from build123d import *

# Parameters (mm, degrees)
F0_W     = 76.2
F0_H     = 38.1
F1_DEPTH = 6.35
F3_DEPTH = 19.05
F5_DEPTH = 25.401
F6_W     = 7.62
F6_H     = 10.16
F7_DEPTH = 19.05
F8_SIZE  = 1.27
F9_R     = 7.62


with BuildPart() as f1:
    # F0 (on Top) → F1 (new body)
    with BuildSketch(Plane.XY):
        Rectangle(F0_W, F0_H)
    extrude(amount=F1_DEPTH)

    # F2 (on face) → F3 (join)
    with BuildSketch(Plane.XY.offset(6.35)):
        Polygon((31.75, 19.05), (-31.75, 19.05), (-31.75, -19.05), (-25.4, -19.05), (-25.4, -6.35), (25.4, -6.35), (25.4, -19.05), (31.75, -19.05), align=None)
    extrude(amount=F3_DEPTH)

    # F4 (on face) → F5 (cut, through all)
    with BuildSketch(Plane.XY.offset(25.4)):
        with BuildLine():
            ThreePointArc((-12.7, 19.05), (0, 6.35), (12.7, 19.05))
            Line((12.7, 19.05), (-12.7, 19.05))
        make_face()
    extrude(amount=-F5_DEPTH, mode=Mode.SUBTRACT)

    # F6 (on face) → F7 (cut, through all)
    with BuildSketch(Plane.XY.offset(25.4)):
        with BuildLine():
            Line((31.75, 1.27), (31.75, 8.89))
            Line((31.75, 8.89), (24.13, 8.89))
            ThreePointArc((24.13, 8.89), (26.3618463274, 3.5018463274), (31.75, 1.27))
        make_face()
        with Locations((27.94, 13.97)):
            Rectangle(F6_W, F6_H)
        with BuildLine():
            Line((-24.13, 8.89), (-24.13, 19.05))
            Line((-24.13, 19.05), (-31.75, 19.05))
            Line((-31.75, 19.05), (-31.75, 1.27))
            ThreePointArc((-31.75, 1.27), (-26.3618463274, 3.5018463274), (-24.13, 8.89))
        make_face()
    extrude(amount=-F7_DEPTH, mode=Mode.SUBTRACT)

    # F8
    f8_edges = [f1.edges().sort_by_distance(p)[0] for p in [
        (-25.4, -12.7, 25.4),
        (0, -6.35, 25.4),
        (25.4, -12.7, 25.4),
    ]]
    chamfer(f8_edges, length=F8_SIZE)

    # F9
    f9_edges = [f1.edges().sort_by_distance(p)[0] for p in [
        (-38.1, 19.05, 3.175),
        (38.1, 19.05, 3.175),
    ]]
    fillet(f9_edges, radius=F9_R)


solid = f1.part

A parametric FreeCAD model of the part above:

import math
import FreeCAD as App
import Part
import Sketcher

V = App.Vector
Q = App.Units.Quantity


def edges_at(feature, points):
    """Names of the edges that pass closest to the given points."""
    edges = feature.Shape.Edges
    near = lambda p: min(range(len(edges)), key=lambda i: edges[i].distToShape(Part.Vertex(*p))[0])
    return sorted({f"Edge{near(p) + 1}" for p in points})


def add_polygon(sketch, points):
    """Adds a closed chain of lines whose ends are joined by coincident constraints."""
    first, n = sketch.GeometryCount, len(points)
    for a, b in zip(points, points[1:] + points[:1]):
        sketch.addGeometry(Part.LineSegment(App.Vector(*a, 0), App.Vector(*b, 0)), False)
    for i in range(n):
        sketch.addConstraint(Sketcher.Constraint("Coincident", first + i, 2, first + (i + 1) % n, 1))

doc = App.newDocument("Part")
body = doc.addObject("PartDesign::Body", "Body")

# Sketch on XY plane
sketch1 = body.newObject("Sketcher::SketchObject", "Sketch")
sketch1.AttachmentSupport = (doc.getObject("XY_Plane"), [""])
sketch1.MapMode = "FlatFace"
add_polygon(sketch1, [(-38.1, 19.05), (-38.1, -19.05), (38.1, -19.05), (38.1, 19.05)])  # lines 0-3
sketch1.addConstraint([
    Sketcher.Constraint("Vertical", 0),
    Sketcher.Constraint("Horizontal", 1),
    Sketcher.Constraint("Vertical", 2),
    Sketcher.Constraint("Horizontal", 3),
    Sketcher.Constraint("Symmetric", 0, 2, 2, 2, -1, 1),
    Sketcher.Constraint("DistanceX", 1, 1, 1, 2, Q("3 in")),
    Sketcher.Constraint("DistanceY", 0, 2, 0, 1, Q("1.5 in")),
])
pad1 = body.newObject("PartDesign::Pad", "Pad")
pad1.Profile = sketch1
pad1.Length = Q("0.25 in")

# Sketch on XY plane
sketch2 = body.newObject("Sketcher::SketchObject", "Sketch001")
sketch2.AttachmentSupport = (doc.getObject("XY_Plane"), [""])
sketch2.MapMode = "FlatFace"
sketch2.AttachmentOffset = App.Placement(V(0, 0, 0.25 * 25.4), App.Rotation())
add_polygon(sketch2, [(31.75, 19.05), (-31.75, 19.05), (-31.75, -19.05), (-25.4, -19.05), (-25.4, -6.35), (25.4, -6.35), (25.4, -19.05), (31.75, -19.05)])  # lines 0-7
sketch2.addConstraint([
    Sketcher.Constraint("Horizontal", 0),
    Sketcher.Constraint("Vertical", 1),
    Sketcher.Constraint("Horizontal", 2),
    Sketcher.Constraint("Vertical", 3),
    Sketcher.Constraint("Horizontal", 4),
    Sketcher.Constraint("Vertical", 5),
    Sketcher.Constraint("Horizontal", 6),
    Sketcher.Constraint("Vertical", 7),
    Sketcher.Constraint("Symmetric", 0, 2, 6, 2, -1, 1),
    Sketcher.Constraint("Symmetric", 2, 2, 5, 2, -2),
    Sketcher.Constraint("DistanceX", 4, 1, 4, 2, Q("2 in")),
    Sketcher.Constraint("DistanceX", 0, 2, 0, 1, Q("2.5 in")),
    Sketcher.Constraint("DistanceY", 1, 2, 1, 1, Q("1.5 in")),
    Sketcher.Constraint("DistanceY", 3, 1, 3, 2, Q("0.5 in")),
])
pad2 = body.newObject("PartDesign::Pad", "Pad001")
pad2.Profile = sketch2
pad2.Length = Q("0.75 in")

# Sketch on XY plane
sketch3 = body.newObject("Sketcher::SketchObject", "Sketch002")
sketch3.AttachmentSupport = (doc.getObject("XY_Plane"), [""])
sketch3.MapMode = "FlatFace"
sketch3.AttachmentOffset = App.Placement(V(0, 0, 1 * 25.4), App.Rotation())
sketch3.addGeometry([
    Part.ArcOfCircle(Part.Circle(V(0, 19.05, 0), V(0, 0, 1), 12.7), math.radians(180), math.radians(360)),
    Part.LineSegment(V(12.7, 19.05, 0), V(-12.7, 19.05, 0)),
], False)
sketch3.addConstraint([
    Sketcher.Constraint("Coincident", 0, 1, 1, 2),
    Sketcher.Constraint("Coincident", 1, 1, 0, 2),
    Sketcher.Constraint("Horizontal", 1),
    Sketcher.Constraint("PointOnObject", 0, 3, -2),
    Sketcher.Constraint("Radius", 0, Q("0.5 in")),
    Sketcher.Constraint("DistanceY", -1, 1, 0, 3, Q("0.75 in")),
    Sketcher.Constraint("DistanceY", -1, 1, 0, 1, Q("0.75 in")),
])
pocket1 = body.newObject("PartDesign::Pocket", "Pocket")
pocket1.Profile = sketch3
pocket1.Type = "ThroughAll"

# Sketch on XY plane
sketch4 = body.newObject("Sketcher::SketchObject", "Sketch003")
sketch4.AttachmentSupport = (doc.getObject("XY_Plane"), [""])
sketch4.MapMode = "FlatFace"
sketch4.AttachmentOffset = App.Placement(V(0, 0, 1 * 25.4), App.Rotation())
sketch4.addGeometry([
    Part.LineSegment(V(31.75, 1.27, 0), V(31.75, 19.05, 0)),  # 0
    Part.LineSegment(V(31.75, 19.05, 0), V(24.13, 19.05, 0)),  # 1
    Part.LineSegment(V(24.13, 19.05, 0), V(24.13, 8.89, 0)),  # 2
    Part.ArcOfCircle(Part.Circle(V(31.75, 8.89, 0), V(0, 0, 1), 7.62), math.radians(180), math.radians(270)),  # 3
    Part.LineSegment(V(-24.13, 8.89, 0), V(-24.13, 19.05, 0)),  # 4
    Part.LineSegment(V(-24.13, 19.05, 0), V(-31.75, 19.05, 0)),  # 5
    Part.LineSegment(V(-31.75, 19.05, 0), V(-31.75, 1.27, 0)),  # 6
    Part.ArcOfCircle(Part.Circle(V(-31.75, 8.89, 0), V(0, 0, 1), 7.62), math.radians(-90), math.radians(0)),  # 7
], False)
sketch4.addConstraint([
    Sketcher.Constraint("Coincident", 0, 2, 1, 1),
    Sketcher.Constraint("Coincident", 1, 2, 2, 1),
    Sketcher.Constraint("Tangent", 2, 2, 3, 1),
    Sketcher.Constraint("Coincident", 3, 2, 0, 1),
    Sketcher.Constraint("Coincident", 4, 2, 5, 1),
    Sketcher.Constraint("Coincident", 5, 2, 6, 1),
    Sketcher.Constraint("Coincident", 6, 2, 7, 1),
    Sketcher.Constraint("Tangent", 7, 2, 4, 1),
    Sketcher.Constraint("Vertical", 0),
    Sketcher.Constraint("Horizontal", 1),
    Sketcher.Constraint("Vertical", 2),
    Sketcher.Constraint("Vertical", 4),
    Sketcher.Constraint("Horizontal", 5),
    Sketcher.Constraint("Vertical", 6),
    Sketcher.Constraint("Equal", 3, 7),
    Sketcher.Constraint("Symmetric", 3, 3, 7, 3, -2),
    Sketcher.Constraint("Symmetric", 0, 2, 5, 2, -2),
    Sketcher.Constraint("Vertical", 3, 3, 0, 2),
    Sketcher.Constraint("Radius", 3, Q("0.3 in")),
    Sketcher.Constraint("DistanceY", 0, 1, 0, 2, Q("0.7 in")),
    Sketcher.Constraint("DistanceX", 7, 3, 3, 3, Q("2.5 in")),
    Sketcher.Constraint("DistanceY", -1, 1, 3, 3, Q("0.35 in")),
])
pocket2 = body.newObject("PartDesign::Pocket", "Pocket001")
pocket2.Profile = sketch4
pocket2.Length = Q("0.75 in")
doc.recompute()

chamfer = body.newObject("PartDesign::Chamfer", "Chamfer")
chamfer.Base = (pocket2, edges_at(pocket2, [(-25.4, -12.7, 25.4), (0, -6.35, 25.4), (25.4, -12.7, 25.4)]))
chamfer.Size = Q("0.05 in")
doc.recompute()

fillet = body.newObject("PartDesign::Fillet", "Fillet")
fillet.Base = (chamfer, edges_at(chamfer, [(-38.1, 19.05, 3.175), (38.1, 19.05, 3.175)]))
fillet.Radius = Q("0.3 in")

doc.recompute()
